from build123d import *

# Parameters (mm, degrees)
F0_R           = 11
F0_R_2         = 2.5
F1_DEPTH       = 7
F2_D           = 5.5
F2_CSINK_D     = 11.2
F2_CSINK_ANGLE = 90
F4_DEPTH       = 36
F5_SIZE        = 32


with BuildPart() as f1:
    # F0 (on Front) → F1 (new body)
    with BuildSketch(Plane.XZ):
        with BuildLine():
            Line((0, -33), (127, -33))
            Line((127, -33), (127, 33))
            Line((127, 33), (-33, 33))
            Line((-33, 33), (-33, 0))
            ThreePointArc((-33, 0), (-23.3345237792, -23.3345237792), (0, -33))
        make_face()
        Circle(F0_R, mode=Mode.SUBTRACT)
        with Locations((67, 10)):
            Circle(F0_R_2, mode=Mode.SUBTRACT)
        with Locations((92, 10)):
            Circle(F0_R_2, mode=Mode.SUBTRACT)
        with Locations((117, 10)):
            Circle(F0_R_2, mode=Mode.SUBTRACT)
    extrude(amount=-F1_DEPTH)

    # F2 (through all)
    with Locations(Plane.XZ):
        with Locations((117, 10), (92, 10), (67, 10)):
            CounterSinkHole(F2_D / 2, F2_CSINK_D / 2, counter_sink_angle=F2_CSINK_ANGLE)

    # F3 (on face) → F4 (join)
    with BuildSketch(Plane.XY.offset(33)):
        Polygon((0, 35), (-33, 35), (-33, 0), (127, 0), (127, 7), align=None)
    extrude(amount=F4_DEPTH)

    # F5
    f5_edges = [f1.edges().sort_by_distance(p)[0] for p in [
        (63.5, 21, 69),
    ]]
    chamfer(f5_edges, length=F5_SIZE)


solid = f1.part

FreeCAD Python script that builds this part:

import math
import FreeCAD as App
import Part
import Sketcher

V = App.Vector
Q = App.Units.Quantity


def edges_at(feature, points):
    """Names of the edges that pass closest to the given points."""
    edges = feature.Shape.Edges
    near = lambda p: min(range(len(edges)), key=lambda i: edges[i].distToShape(Part.Vertex(*p))[0])
    return sorted({f"Edge{near(p) + 1}" for p in points})


def add_polygon(sketch, points):
    """Adds a closed chain of lines whose ends are joined by coincident constraints."""
    first, n = sketch.GeometryCount, len(points)
    for a, b in zip(points, points[1:] + points[:1]):
        sketch.addGeometry(Part.LineSegment(App.Vector(*a, 0), App.Vector(*b, 0)), False)
    for i in range(n):
        sketch.addConstraint(Sketcher.Constraint("Coincident", first + i, 2, first + (i + 1) % n, 1))

doc = App.newDocument("Part")
params = doc.addObject("Spreadsheet::Sheet", "Params")
for row, (alias, value) in enumerate([
    ("sketch1_diameter", "22 mm"),
    ("sketch1_diameter2", "5 mm"),
    ("sketch1_radius", "33 mm"),
    ("sketch1_width", "127 mm"),
    ("sketch1_height", "66 mm"),
    ("pad1_length", "7 mm"),
    ("sketch2_diameter", "5.5 mm"),
    ("hole_diameter", "5.5 mm"),
    ("hole_csink_diameter", "11.2 mm"),
    ("sketch3_width", "33 mm"),
    ("sketch3_width2", "160 mm"),
    ("sketch3_height", "35 mm"),
    ("sketch3_height2", "7 mm"),
    ("pad2_length", "36 mm"),
    ("chamfer_size", "32 mm"),
], start=1):
    params.set(f"A{row}", alias)
    params.set(f"B{row}", "=" + value)
    params.setAlias(f"B{row}", alias)

body = doc.addObject("PartDesign::Body", "Body")

sketch1 = body.newObject("Sketcher::SketchObject", "Sketch")
sketch1.AttachmentSupport = (doc.getObject("XZ_Plane"), [""])
sketch1.MapMode = "FlatFace"
sketch1.addGeometry([
    Part.LineSegment(V(0, -33, 0), V(127, -33, 0)),
    Part.LineSegment(V(127, -33, 0), V(127, 33, 0)),
    Part.LineSegment(V(127, 33, 0), V(-33, 33, 0)),
    Part.LineSegment(V(-33, 33, 0), V(-33, 0, 0)),
    Part.ArcOfCircle(Part.Circle(V(0, 0, 0), V(0, 0, 1), 33), math.radians(180), math.radians(270)),
    Part.Circle(V(0, 0, 0), V(0, 0, 1), 11),
    Part.Circle(V(67, 10, 0), V(0, 0, 1), 2.5),
    Part.Circle(V(92, 10, 0), V(0, 0, 1), 2.5),
    Part.Circle(V(117, 10, 0), V(0, 0, 1), 2.5),
], False)
sketch1.addConstraint([
    Sketcher.Constraint("Coincident", 0, 2, 1, 1),
    Sketcher.Constraint("Coincident", 1, 2, 2, 1),
    Sketcher.Constraint("Coincident", 2, 2, 3, 1),
    Sketcher.Constraint("Tangent", 3, 2, 4, 1),
    Sketcher.Constraint("Tangent", 4, 2, 0, 1),
    Sketcher.Constraint("Horizontal", 0),
    Sketcher.Constraint("Vertical", 1),
    Sketcher.Constraint("Horizontal", 2),
    Sketcher.Constraint("Vertical", 3),
    Sketcher.Constraint("Coincident", 4, 3, -1, 1),
    Sketcher.Constraint("Coincident", 5, 3, -1, 1),
    Sketcher.Constraint("Equal", 6, 7),
    Sketcher.Constraint("Equal", 7, 8),
    Sketcher.Constraint("Horizontal", 6, 3, 7, 3),
    Sketcher.Constraint("Horizontal", 7, 3, 8, 3),
    Sketcher.Constraint("Diameter", 5, Q("22 mm")),
    Sketcher.Constraint("Diameter", 6, Q("5 mm")),
    Sketcher.Constraint("Radius", 4, Q("33 mm")),
    Sketcher.Constraint("DistanceX", 0, 1, 0, 2, Q("127 mm")),
    Sketcher.Constraint("DistanceY", 1, 1, 1, 2, Q("66 mm")),
    Sketcher.Constraint("DistanceX", -1, 1, 6, 3, Q("67 mm")),
    Sketcher.Constraint("DistanceY", -1, 1, 6, 3, Q("10 mm")),
    Sketcher.Constraint("DistanceX", -1, 1, 7, 3, Q("92 mm")),
    Sketcher.Constraint("DistanceX", -1, 1, 8, 3, Q("117 mm")),
])
sketch1.setExpression("Constraints[15]", "Params.sketch1_diameter")
sketch1.setExpression("Constraints[16]", "Params.sketch1_diameter2")
sketch1.setExpression("Constraints[17]", "Params.sketch1_radius")
sketch1.setExpression("Constraints[18]", "Params.sketch1_width")
sketch1.setExpression("Constraints[19]", "Params.sketch1_height")
pad1 = body.newObject("PartDesign::Pad", "Pad")
pad1.Profile = sketch1
pad1.setExpression("Length", "Params.pad1_length")
pad1.Reversed = True

sketch2 = body.newObject("Sketcher::SketchObject", "Sketch001")
sketch2.AttachmentSupport = (doc.getObject("XZ_Plane"), [""])
sketch2.MapMode = "FlatFace"
sketch2.addGeometry([
    Part.Circle(V(117, 10, 0), V(0, 0, 1), 2.8),
    Part.Circle(V(92, 10, 0), V(0, 0, 1), 2.8),
    Part.Circle(V(67, 10, 0), V(0, 0, 1), 2.8),
], False)
sketch2.addConstraint([
    Sketcher.Constraint("Equal", 0, 1),
    Sketcher.Constraint("Equal", 1, 2),
    Sketcher.Constraint("Horizontal", 0, 3, 1, 3),
    Sketcher.Constraint("Horizontal", 1, 3, 2, 3),
    Sketcher.Constraint("Diameter", 0, Q("5.5 mm")),
    Sketcher.Constraint("DistanceX", -1, 1, 0, 3, Q("117 mm")),
    Sketcher.Constraint("DistanceY", -1, 1, 0, 3, Q("10 mm")),
    Sketcher.Constraint("DistanceX", -1, 1, 1, 3, Q("92 mm")),
    Sketcher.Constraint("DistanceX", -1, 1, 2, 3, Q("67 mm")),
])
sketch2.setExpression("Constraints[4]", "Params.sketch2_diameter")
doc.recompute()
hole = body.newObject("PartDesign::Hole", "Hole")
hole.Profile = sketch2
hole.ThreadType = "None"
hole.setExpression("Diameter", "Params.hole_diameter")
hole.DepthType = "ThroughAll"
hole.HoleCutType = "Countersink"
hole.setExpression("HoleCutDiameter", "Params.hole_csink_diameter")
hole.HoleCutCountersinkAngle = 90

sketch3 = body.newObject("Sketcher::SketchObject", "Sketch002")
sketch3.AttachmentSupport = (doc.getObject("XY_Plane"), [""])
sketch3.MapMode = "FlatFace"
sketch3.AttachmentOffset = App.Placement(V(0, 0, 33), App.Rotation())
add_polygon(sketch3, [(0, 35), (-33, 35), (-33, 0), (127, 0), (127, 7)])
sketch3.addConstraint([
    Sketcher.Constraint("Horizontal", 0),
    Sketcher.Constraint("Vertical", 1),
    Sketcher.Constraint("Horizontal", 2),
    Sketcher.Constraint("Vertical", 3),
    Sketcher.Constraint("PointOnObject", 1, 2, -1),
    Sketcher.Constraint("PointOnObject", 4, 2, -2),
    Sketcher.Constraint("DistanceX", 0, 2, 0, 1, Q("33 mm")),
    Sketcher.Constraint("DistanceX", 2, 1, 2, 2, Q("160 mm")),
    Sketcher.Constraint("DistanceY", 1, 2, 1, 1, Q("35 mm")),
    Sketcher.Constraint("DistanceY", 3, 1, 3, 2, Q("7 mm")),
])
sketch3.setExpression("Constraints[11]", "Params.sketch3_width")
sketch3.setExpression("Constraints[12]", "Params.sketch3_width2")
sketch3.setExpression("Constraints[13]", "Params.sketch3_height")
sketch3.setExpression("Constraints[14]", "Params.sketch3_height2")
pad2 = body.newObject("PartDesign::Pad", "Pad001")
pad2.Profile = sketch3
pad2.setExpression("Length", "Params.pad2_length")
doc.recompute()

chamfer = body.newObject("PartDesign::Chamfer", "Chamfer")
chamfer.Base = (pad2, edges_at(pad2, [(63.5, 21, 69)]))
chamfer.setExpression("Size", "Params.chamfer_size")

doc.recompute()
